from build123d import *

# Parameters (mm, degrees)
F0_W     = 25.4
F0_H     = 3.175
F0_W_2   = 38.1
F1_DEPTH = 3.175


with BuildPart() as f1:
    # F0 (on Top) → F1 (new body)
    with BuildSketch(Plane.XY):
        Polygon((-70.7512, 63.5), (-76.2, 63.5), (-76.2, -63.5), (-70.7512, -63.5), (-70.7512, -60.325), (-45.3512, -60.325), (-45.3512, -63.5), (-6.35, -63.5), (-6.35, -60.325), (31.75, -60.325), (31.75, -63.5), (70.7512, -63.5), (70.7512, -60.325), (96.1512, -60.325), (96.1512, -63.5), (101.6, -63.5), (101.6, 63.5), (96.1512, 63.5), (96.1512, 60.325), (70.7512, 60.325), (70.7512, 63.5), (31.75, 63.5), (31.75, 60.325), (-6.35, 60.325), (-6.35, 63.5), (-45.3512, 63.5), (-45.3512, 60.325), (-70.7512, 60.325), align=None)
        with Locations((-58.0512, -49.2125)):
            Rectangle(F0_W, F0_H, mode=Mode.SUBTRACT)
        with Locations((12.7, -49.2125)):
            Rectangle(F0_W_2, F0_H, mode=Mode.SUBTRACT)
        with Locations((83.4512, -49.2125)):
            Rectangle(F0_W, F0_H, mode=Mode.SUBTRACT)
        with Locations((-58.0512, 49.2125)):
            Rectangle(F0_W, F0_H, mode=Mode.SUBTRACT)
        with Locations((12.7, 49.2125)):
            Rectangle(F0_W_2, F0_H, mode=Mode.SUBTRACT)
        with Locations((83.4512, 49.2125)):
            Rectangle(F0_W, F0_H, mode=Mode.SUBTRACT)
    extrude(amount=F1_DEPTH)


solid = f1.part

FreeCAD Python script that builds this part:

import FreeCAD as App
import Part
import Sketcher

V = App.Vector
Q = App.Units.Quantity

doc = App.newDocument("Part")
body = doc.addObject("PartDesign::Body", "Body")

# Sketch on XY plane
sketch1 = body.newObject("Sketcher::SketchObject", "Sketch")
sketch1.AttachmentSupport = (doc.getObject("XY_Plane"), [""])
sketch1.MapMode = "FlatFace"
sketch1.addGeometry([
    Part.LineSegment(V(-70.8, 63.5, 0), V(-76.2, 63.5, 0)),  # 0
    Part.LineSegment(V(-76.2, 63.5, 0), V(-76.2, -63.5, 0)),  # 1
    Part.LineSegment(V(-76.2, -63.5, 0), V(-70.8, -63.5, 0)),  # 2
    Part.LineSegment(V(-70.8, -63.5, 0), V(-70.8, -60.3, 0)),  # 3
    Part.LineSegment(V(-70.8, -60.3, 0), V(-45.4, -60.3, 0)),  # 4
    Part.LineSegment(V(-45.4, -60.3, 0), V(-45.4, -63.5, 0)),  # 5
    Part.LineSegment(V(-45.4, -63.5, 0), V(-6.3, -63.5, 0)),  # 6
    Part.LineSegment(V(-6.3, -63.5, 0), V(-6.3, -60.3, 0)),  # 7
    Part.LineSegment(V(-6.3, -60.3, 0), V(31.8, -60.3, 0)),  # 8
    Part.LineSegment(V(31.8, -60.3, 0), V(31.8, -63.5, 0)),  # 9
    Part.LineSegment(V(31.8, -63.5, 0), V(70.8, -63.5, 0)),  # 10
    Part.LineSegment(V(70.8, -63.5, 0), V(70.8, -60.3, 0)),  # 11
    Part.LineSegment(V(70.8, -60.3, 0), V(96.2, -60.3, 0)),  # 12
    Part.LineSegment(V(96.2, -60.3, 0), V(96.2, -63.5, 0)),  # 13
    Part.LineSegment(V(96.2, -63.5, 0), V(101.6, -63.5, 0)),  # 14
    Part.LineSegment(V(101.6, -63.5, 0), V(101.6, 63.5, 0)),  # 15
    Part.LineSegment(V(101.6, 63.5, 0), V(96.2, 63.5, 0)),  # 16
    Part.LineSegment(V(96.2, 63.5, 0), V(96.2, 60.3, 0)),  # 17
    Part.LineSegment(V(96.2, 60.3, 0), V(70.8, 60.3, 0)),  # 18
    Part.LineSegment(V(70.8, 60.3, 0), V(70.8, 63.5, 0)),  # 19
    Part.LineSegment(V(70.8, 63.5, 0), V(31.8, 63.5, 0)),  # 20
    Part.LineSegment(V(31.8, 63.5, 0), V(31.8, 60.3, 0)),  # 21
    Part.LineSegment(V(31.8, 60.3, 0), V(-6.3, 60.3, 0)),  # 22
    Part.LineSegment(V(-6.3, 60.3, 0), V(-6.3, 63.5, 0)),  # 23
    Part.LineSegment(V(-6.3, 63.5, 0), V(-45.4, 63.5, 0)),  # 24
    Part.LineSegment(V(-45.4, 63.5, 0), V(-45.4, 60.3, 0)),  # 25
    Part.LineSegment(V(-45.4, 60.3, 0), V(-70.8, 60.3, 0)),  # 26
    Part.LineSegment(V(-70.8, 60.3, 0), V(-70.8, 63.5, 0)),  # 27
    Part.LineSegment(V(-45.4, -50.8, 0), V(-70.8, -50.8, 0)),  # 28
    Part.LineSegment(V(-70.8, -50.8, 0), V(-70.8, -47.6, 0)),  # 29
    Part.LineSegment(V(-70.8, -47.6, 0), V(-45.4, -47.6, 0)),  # 30
    Part.LineSegment(V(-45.4, -47.6, 0), V(-45.4, -50.8, 0)),  # 31
    Part.LineSegment(V(31.8, -50.8, 0), V(-6.3, -50.8, 0)),  # 32
    Part.LineSegment(V(-6.3, -50.8, 0), V(-6.3, -47.6, 0)),  # 33
    Part.LineSegment(V(-6.3, -47.6, 0), V(31.8, -47.6, 0)),  # 34
    Part.LineSegment(V(31.8, -47.6, 0), V(31.8, -50.8, 0)),  # 35
    Part.LineSegment(V(96.2, -50.8, 0), V(70.8, -50.8, 0)),  # 36
    Part.LineSegment(V(70.8, -50.8, 0), V(70.8, -47.6, 0)),  # 37
    Part.LineSegment(V(70.8, -47.6, 0), V(96.2, -47.6, 0)),  # 38
    Part.LineSegment(V(96.2, -47.6, 0), V(96.2, -50.8, 0)),  # 39
    Part.LineSegment(V(-45.4, 47.6, 0), V(-70.8, 47.6, 0)),  # 40
    Part.LineSegment(V(-70.8, 47.6, 0), V(-70.8, 50.8, 0)),  # 41
    Part.LineSegment(V(-70.8, 50.8, 0), V(-45.4, 50.8, 0)),  # 42
    Part.LineSegment(V(-45.4, 50.8, 0), V(-45.4, 47.6, 0)),  # 43
    Part.LineSegment(V(31.8, 47.6, 0), V(-6.3, 47.6, 0)),  # 44
    Part.LineSegment(V(-6.3, 47.6, 0), V(-6.3, 50.8, 0)),  # 45
    Part.LineSegment(V(-6.3, 50.8, 0), V(31.8, 50.8, 0)),  # 46
    Part.LineSegment(V(31.8, 50.8, 0), V(31.8, 47.6, 0)),  # 47
    Part.LineSegment(V(96.2, 47.6, 0), V(70.8, 47.6, 0)),  # 48
    Part.LineSegment(V(70.8, 47.6, 0), V(70.8, 50.8, 0)),  # 49
    Part.LineSegment(V(70.8, 50.8, 0), V(96.2, 50.8, 0)),  # 50
    Part.LineSegment(V(96.2, 50.8, 0), V(96.2, 47.6, 0)),  # 51
], False)
sketch1.addConstraint([
    Sketcher.Constraint("Coincident", 0, 2, 1, 1),
    Sketcher.Constraint("Coincident", 1, 2, 2, 1),
    Sketcher.Constraint("Coincident", 2, 2, 3, 1),
    Sketcher.Constraint("Coincident", 3, 2, 4, 1),
    Sketcher.Constraint("Coincident", 4, 2, 5, 1),
    Sketcher.Constraint("Coincident", 5, 2, 6, 1),
    Sketcher.Constraint("Coincident", 6, 2, 7, 1),
    Sketcher.Constraint("Coincident", 7, 2, 8, 1),
    Sketcher.Constraint("Coincident", 8, 2, 9, 1),
    Sketcher.Constraint("Coincident", 9, 2, 10, 1),
    Sketcher.Constraint("Coincident", 10, 2, 11, 1),
    Sketcher.Constraint("Coincident", 11, 2, 12, 1),
    Sketcher.Constraint("Coincident", 12, 2, 13, 1),
    Sketcher.Constraint("Coincident", 13, 2, 14, 1),
    Sketcher.Constraint("Coincident", 14, 2, 15, 1),
    Sketcher.Constraint("Coincident", 15, 2, 16, 1),
    Sketcher.Constraint("Coincident", 16, 2, 17, 1),
    Sketcher.Constraint("Coincident", 17, 2, 18, 1),
    Sketcher.Constraint("Coincident", 18, 2, 19, 1),
    Sketcher.Constraint("Coincident", 19, 2, 20, 1),
    Sketcher.Constraint("Coincident", 20, 2, 21, 1),
    Sketcher.Constraint("Coincident", 21, 2, 22, 1),
    Sketcher.Constraint("Coincident", 22, 2, 23, 1),
    Sketcher.Constraint("Coincident", 23, 2, 24, 1),
    Sketcher.Constraint("Coincident", 24, 2, 25, 1),
    Sketcher.Constraint("Coincident", 25, 2, 26, 1),
    Sketcher.Constraint("Coincident", 26, 2, 27, 1),
    Sketcher.Constraint("Coincident", 27, 2, 0, 1),
    Sketcher.Constraint("Coincident", 28, 2, 29, 1),
    Sketcher.Constraint("Coincident", 29, 2, 30, 1),
    Sketcher.Constraint("Coincident", 30, 2, 31, 1),
    Sketcher.Constraint("Coincident", 31, 2, 28, 1),
    Sketcher.Constraint("Coincident", 32, 2, 33, 1),
    Sketcher.Constraint("Coincident", 33, 2, 34, 1),
    Sketcher.Constraint("Coincident", 34, 2, 35, 1),
    Sketcher.Constraint("Coincident", 35, 2, 32, 1),
    Sketcher.Constraint("Coincident", 36, 2, 37, 1),
    Sketcher.Constraint("Coincident", 37, 2, 38, 1),
    Sketcher.Constraint("Coincident", 38, 2, 39, 1),
    Sketcher.Constraint("Coincident", 39, 2, 36, 1),
    Sketcher.Constraint("Coincident", 40, 2, 41, 1),
    Sketcher.Constraint("Coincident", 41, 2, 42, 1),
    Sketcher.Constraint("Coincident", 42, 2, 43, 1),
    Sketcher.Constraint("Coincident", 43, 2, 40, 1),
    Sketcher.Constraint("Coincident", 44, 2, 45, 1),
    Sketcher.Constraint("Coincident", 45, 2, 46, 1),
    Sketcher.Constraint("Coincident", 46, 2, 47, 1),
    Sketcher.Constraint("Coincident", 47, 2, 44, 1),
    Sketcher.Constraint("Coincident", 48, 2, 49, 1),
    Sketcher.Constraint("Coincident", 49, 2, 50, 1),
    Sketcher.Constraint("Coincident", 50, 2, 51, 1),
    Sketcher.Constraint("Coincident", 51, 2, 48, 1),
    Sketcher.Constraint("Horizontal", 0),
    Sketcher.Constraint("Vertical", 1),
    Sketcher.Constraint("Horizontal", 2),
    Sketcher.Constraint("Vertical", 3),
    Sketcher.Constraint("Horizontal", 4),
    Sketcher.Constraint("Vertical", 5),
    Sketcher.Constraint("Horizontal", 6),
    Sketcher.Constraint("Vertical", 7),
    Sketcher.Constraint("Horizontal", 8),
    Sketcher.Constraint("Vertical", 9),
    Sketcher.Constraint("Horizontal", 10),
    Sketcher.Constraint("Vertical", 11),
    Sketcher.Constraint("Horizontal", 12),
    Sketcher.Constraint("Vertical", 13),
    Sketcher.Constraint("Horizontal", 14),
    Sketcher.Constraint("Vertical", 15),
    Sketcher.Constraint("Horizontal", 16),
    Sketcher.Constraint("Vertical", 17),
    Sketcher.Constraint("Horizontal", 18),
    Sketcher.Constraint("Vertical", 19),
    Sketcher.Constraint("Horizontal", 20),
    Sketcher.Constraint("Vertical", 21),
    Sketcher.Constraint("Horizontal", 22),
    Sketcher.Constraint("Vertical", 23),
    Sketcher.Constraint("Horizontal", 24),
    Sketcher.Constraint("Vertical", 25),
    Sketcher.Constraint("Horizontal", 26),
    Sketcher.Constraint("Vertical", 27),
    Sketcher.Constraint("Horizontal", 28),
    Sketcher.Constraint("Vertical", 29),
    Sketcher.Constraint("Horizontal", 30),
    Sketcher.Constraint("Vertical", 31),
    Sketcher.Constraint("Horizontal", 32),
    Sketcher.Constraint("Vertical", 33),
    Sketcher.Constraint("Horizontal", 34),
    Sketcher.Constraint("Vertical", 35),
    Sketcher.Constraint("Horizontal", 36),
    Sketcher.Constraint("Vertical", 37),
    Sketcher.Constraint("Horizontal", 38),
    Sketcher.Constraint("Vertical", 39),
    Sketcher.Constraint("Horizontal", 40),
    Sketcher.Constraint("Vertical", 41),
    Sketcher.Constraint("Horizontal", 42),
    Sketcher.Constraint("Vertical", 43),
    Sketcher.Constraint("Horizontal", 44),
    Sketcher.Constraint("Vertical", 45),
    Sketcher.Constraint("Horizontal", 46),
    Sketcher.Constraint("Vertical", 47),
    Sketcher.Constraint("Horizontal", 48),
    Sketcher.Constraint("Vertical", 49),
    Sketcher.Constraint("Horizontal", 50),
    Sketcher.Constraint("Vertical", 51),
    Sketcher.Constraint("Symmetric", 3, 2, 18, 2, -1, 1),
    Sketcher.Constraint("Symmetric", 11, 2, 26, 2, -1, 1),
    Sketcher.Constraint("Symmetric", 37, 2, 40, 2, -1, 1),
    Sketcher.Constraint("Symmetric", 29, 2, 48, 2, -1, 1),
    Sketcher.Constraint("Symmetric", 2, 2, 10, 2, -2),
    Sketcher.Constraint("Symmetric", 28, 2, 36, 2, -2),
    Sketcher.Constraint("Symmetric", 13, 2, 16, 2, -1),
    Sketcher.Constraint("Symmetric", 9, 2, 20, 2, -1),
    Sketcher.Constraint("Symmetric", 7, 2, 22, 2, -1),
    Sketcher.Constraint("Symmetric", 5, 2, 24, 2, -1),
    Sketcher.Constraint("Symmetric", 31, 2, 42, 2, -1),
    Sketcher.Constraint("Symmetric", 33, 2, 44, 2, -1),
    Sketcher.Constraint("Symmetric", 35, 2, 46, 2, -1),
    Sketcher.Constraint("Symmetric", 39, 2, 50, 2, -1),
    Sketcher.Constraint("Horizontal", 2, 2, 5, 2),
    Sketcher.Constraint("Horizontal", 4, 2, 7, 2),
    Sketcher.Constraint("Horizontal", 8, 2, 11, 2),
    Sketcher.Constraint("Horizontal", 10, 2, 13, 2),
    Sketcher.Constraint("Horizontal", 0, 2, 15, 2),
    Sketcher.Constraint("Horizontal", 31, 2, 32, 2),
    Sketcher.Constraint("Horizontal", 30, 2, 33, 2),
    Sketcher.Constraint("Horizontal", 34, 2, 37, 2),
    Sketcher.Constraint("Vertical", 27, 2, 28, 2),
    Sketcher.Constraint("Vertical", 25, 2, 30, 2),
    Sketcher.Constraint("Vertical", 23, 2, 32, 2),
    Sketcher.Constraint("Vertical", 21, 2, 34, 2),
    Sketcher.Constraint("Vertical", 17, 2, 38, 2),
    Sketcher.Constraint("Equal", 6, 10),
    Sketcher.Constraint("Equal", 4, 12),
    Sketcher.Constraint("Equal", 2, 14),
    Sketcher.Constraint("Equal", 27, 29),
    Sketcher.Constraint("DistanceX", 4, 1, 4, 2, Q("1 in")),
    Sketcher.Constraint("DistanceY", 1, 2, 1, 1, Q("5 in")),
    Sketcher.Constraint("DistanceX", 8, 1, 8, 2, Q("1.5 in")),
    Sketcher.Constraint("DistanceX", 0, 2, -1, 1, Q("3 in")),
    Sketcher.Constraint("DistanceY", 28, 2, -1, 1, Q("2 in")),
    Sketcher.Constraint("DistanceY", 3, 1, 3, 2, Q("0.125 in")),
    Sketcher.Constraint("DistanceX", 0, 2, 0, 1, Q("5.4488 mm")),
])
pad1 = body.newObject("PartDesign::Pad", "Pad")
pad1.Profile = sketch1
pad1.Length = Q("0.125 in")

doc.recompute()
